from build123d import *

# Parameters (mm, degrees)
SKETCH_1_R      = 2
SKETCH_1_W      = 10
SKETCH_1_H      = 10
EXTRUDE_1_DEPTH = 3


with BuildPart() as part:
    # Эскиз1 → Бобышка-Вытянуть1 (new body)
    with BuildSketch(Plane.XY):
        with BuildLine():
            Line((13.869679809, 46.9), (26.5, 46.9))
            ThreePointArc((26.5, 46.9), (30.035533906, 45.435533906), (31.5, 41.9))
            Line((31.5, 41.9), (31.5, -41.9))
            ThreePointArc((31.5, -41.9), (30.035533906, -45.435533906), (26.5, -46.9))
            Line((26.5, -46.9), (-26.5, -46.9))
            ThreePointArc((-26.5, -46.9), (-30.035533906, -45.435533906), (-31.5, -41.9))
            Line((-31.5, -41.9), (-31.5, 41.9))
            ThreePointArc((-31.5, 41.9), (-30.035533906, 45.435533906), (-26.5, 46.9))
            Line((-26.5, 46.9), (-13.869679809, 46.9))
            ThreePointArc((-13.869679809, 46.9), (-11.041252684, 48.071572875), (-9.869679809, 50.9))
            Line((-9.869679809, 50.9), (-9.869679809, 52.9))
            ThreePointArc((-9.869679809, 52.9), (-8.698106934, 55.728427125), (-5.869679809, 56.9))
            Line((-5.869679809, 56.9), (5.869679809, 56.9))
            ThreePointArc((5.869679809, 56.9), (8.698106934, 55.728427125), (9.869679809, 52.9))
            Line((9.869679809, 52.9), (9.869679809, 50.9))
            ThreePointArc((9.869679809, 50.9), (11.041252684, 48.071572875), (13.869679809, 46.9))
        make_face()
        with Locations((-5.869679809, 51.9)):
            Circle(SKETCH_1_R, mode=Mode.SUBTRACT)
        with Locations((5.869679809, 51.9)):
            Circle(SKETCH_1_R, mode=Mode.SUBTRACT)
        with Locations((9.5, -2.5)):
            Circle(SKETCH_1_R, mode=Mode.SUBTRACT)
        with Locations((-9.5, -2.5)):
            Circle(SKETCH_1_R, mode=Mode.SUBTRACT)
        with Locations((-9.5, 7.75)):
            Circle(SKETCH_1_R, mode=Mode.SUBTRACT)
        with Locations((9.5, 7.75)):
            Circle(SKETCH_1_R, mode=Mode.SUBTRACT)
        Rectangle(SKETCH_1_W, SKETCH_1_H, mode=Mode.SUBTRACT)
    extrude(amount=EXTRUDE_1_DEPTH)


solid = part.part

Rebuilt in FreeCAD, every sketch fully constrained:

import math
import FreeCAD as App
import Part
import Sketcher

V = App.Vector


def add_polygon(sketch, points):
    """Adds a closed chain of lines whose ends are joined by coincident constraints."""
    first, n = sketch.GeometryCount, len(points)
    for a, b in zip(points, points[1:] + points[:1]):
        sketch.addGeometry(Part.LineSegment(App.Vector(*a, 0), App.Vector(*b, 0)), False)
    for i in range(n):
        sketch.addConstraint(Sketcher.Constraint("Coincident", first + i, 2, first + (i + 1) % n, 1))

doc = App.newDocument("Part")
params = doc.addObject("Spreadsheet::Sheet", "Params")
for row, (alias, value) in enumerate([
    ("sketch1_diameter", "4 mm"),
    ("sketch1_radius", "4 mm"),
    ("sketch1_radius2", "5 mm"),
    ("sketch1_width", "53 mm"),
    ("sketch1_width2", "10 mm"),
    ("pad1_length", "3 mm"),
], start=1):
    params.set(f"A{row}", alias)
    params.set(f"B{row}", "=" + value)
    params.setAlias(f"B{row}", alias)

body = doc.addObject("PartDesign::Body", "Body")

sketch1 = doc.addObject("Sketcher::SketchObject", "Sketch")
body.addObject(sketch1)
sketch1.AttachmentSupport = (doc.XY_Plane, [""])
sketch1.MapMode = "FlatFace"
sketch1.addGeometry(Part.LineSegment(V(26.5, 46.9, 0), V(13.9, 46.9, 0)), False)
sketch1.addGeometry(Part.ArcOfCircle(Part.Circle(V(13.9, 50.9, 0), V(0, 0, 1), 4), math.radians(180), math.radians(270)), False)
sketch1.addGeometry(Part.LineSegment(V(9.9, 50.9, 0), V(9.9, 52.9, 0)), False)
sketch1.addGeometry(Part.ArcOfCircle(Part.Circle(V(5.9, 52.9, 0), V(0, 0, 1), 4), math.radians(0), math.radians(90)), False)
sketch1.addGeometry(Part.LineSegment(V(5.9, 56.9, 0), V(-5.9, 56.9, 0)), False)
sketch1.addGeometry(Part.ArcOfCircle(Part.Circle(V(-5.9, 52.9, 0), V(0, 0, 1), 4), math.radians(90), math.radians(180)), False)
sketch1.addGeometry(Part.LineSegment(V(-9.9, 52.9, 0), V(-9.9, 50.9, 0)), False)
sketch1.addGeometry(Part.ArcOfCircle(Part.Circle(V(-13.9, 50.9, 0), V(0, 0, 1), 4), math.radians(-90), math.radians(0)), False)
sketch1.addGeometry(Part.LineSegment(V(-13.9, 46.9, 0), V(-26.5, 46.9, 0)), False)
sketch1.addGeometry(Part.ArcOfCircle(Part.Circle(V(-26.5, 41.9, 0), V(0, 0, 1), 5), math.radians(90), math.radians(180)), False)
sketch1.addGeometry(Part.LineSegment(V(-31.5, 41.9, 0), V(-31.5, -41.9, 0)), False)
sketch1.addGeometry(Part.ArcOfCircle(Part.Circle(V(-26.5, -41.9, 0), V(0, 0, 1), 5), math.radians(180), math.radians(270)), False)
sketch1.addGeometry(Part.LineSegment(V(-26.5, -46.9, 0), V(26.5, -46.9, 0)), False)
sketch1.addGeometry(Part.ArcOfCircle(Part.Circle(V(26.5, -41.9, 0), V(0, 0, 1), 5), math.radians(-90), math.radians(0)), False)
sketch1.addGeometry(Part.LineSegment(V(31.5, -41.9, 0), V(31.5, 41.9, 0)), False)
sketch1.addGeometry(Part.ArcOfCircle(Part.Circle(V(26.5, 41.9, 0), V(0, 0, 1), 5), math.radians(0), math.radians(90)), False)
sketch1.addGeometry(Part.Circle(V(9.5, -2.5, 0), V(0, 0, 1), 2), False)
sketch1.addGeometry(Part.Circle(V(9.5, 7.8, 0), V(0, 0, 1), 2), False)
add_polygon(sketch1, [(-5, -5), (-5, 5), (5, 5), (5, -5)])
sketch1.addGeometry(Part.Circle(V(-9.5, -2.5, 0), V(0, 0, 1), 2), False)
sketch1.addGeometry(Part.Circle(V(-9.5, 7.8, 0), V(0, 0, 1), 2), False)
sketch1.addGeometry(Part.Circle(V(5.9, 51.9, 0), V(0, 0, 1), 2), False)
sketch1.addGeometry(Part.Circle(V(-5.9, 51.9, 0), V(0, 0, 1), 2), False)
sketch1.addConstraint(Sketcher.Constraint("Tangent", 0, 2, 1, 2))
sketch1.addConstraint(Sketcher.Constraint("Tangent", 1, 1, 2, 1))
sketch1.addConstraint(Sketcher.Constraint("Tangent", 2, 2, 3, 1))
sketch1.addConstraint(Sketcher.Constraint("Tangent", 3, 2, 4, 1))
sketch1.addConstraint(Sketcher.Constraint("Tangent", 4, 2, 5, 1))
sketch1.addConstraint(Sketcher.Constraint("Tangent", 5, 2, 6, 1))
sketch1.addConstraint(Sketcher.Constraint("Tangent", 6, 2, 7, 2))
sketch1.addConstraint(Sketcher.Constraint("Tangent", 7, 1, 8, 1))
sketch1.addConstraint(Sketcher.Constraint("Tangent", 8, 2, 9, 1))
sketch1.addConstraint(Sketcher.Constraint("Tangent", 9, 2, 10, 1))
sketch1.addConstraint(Sketcher.Constraint("Tangent", 10, 2, 11, 1))
sketch1.addConstraint(Sketcher.Constraint("Tangent", 11, 2, 12, 1))
sketch1.addConstraint(Sketcher.Constraint("Tangent", 12, 2, 13, 1))
sketch1.addConstraint(Sketcher.Constraint("Tangent", 13, 2, 14, 1))
sketch1.addConstraint(Sketcher.Constraint("Tangent", 14, 2, 15, 1))
sketch1.addConstraint(Sketcher.Constraint("Tangent", 15, 2, 0, 1))
sketch1.addConstraint(Sketcher.Constraint("Horizontal", 0))
sketch1.addConstraint(Sketcher.Constraint("Vertical", 2))
sketch1.addConstraint(Sketcher.Constraint("Horizontal", 4))
sketch1.addConstraint(Sketcher.Constraint("Vertical", 6))
sketch1.addConstraint(Sketcher.Constraint("Horizontal", 8))
sketch1.addConstraint(Sketcher.Constraint("Vertical", 10))
sketch1.addConstraint(Sketcher.Constraint("Horizontal", 12))
sketch1.addConstraint(Sketcher.Constraint("Vertical", 14))
sketch1.addConstraint(Sketcher.Constraint("Vertical", 18))
sketch1.addConstraint(Sketcher.Constraint("Horizontal", 19))
sketch1.addConstraint(Sketcher.Constraint("Vertical", 20))
sketch1.addConstraint(Sketcher.Constraint("Horizontal", 21))
sketch1.addConstraint(Sketcher.Constraint("Equal", 1, 3))
sketch1.addConstraint(Sketcher.Constraint("Equal", 3, 5))
sketch1.addConstraint(Sketcher.Constraint("Equal", 5, 7))
sketch1.addConstraint(Sketcher.Constraint("Equal", 9, 11))
sketch1.addConstraint(Sketcher.Constraint("Equal", 11, 13))
sketch1.addConstraint(Sketcher.Constraint("Equal", 13, 15))
sketch1.addConstraint(Sketcher.Constraint("Equal", 16, 17))
sketch1.addConstraint(Sketcher.Constraint("Equal", 17, 22))
sketch1.addConstraint(Sketcher.Constraint("Equal", 22, 23))
sketch1.addConstraint(Sketcher.Constraint("Equal", 23, 24))
sketch1.addConstraint(Sketcher.Constraint("Equal", 24, 25))
sketch1.addConstraint(Sketcher.Constraint("Symmetric", 9, 3, 13, 3, -1, 1))
sketch1.addConstraint(Sketcher.Constraint("Symmetric", 18, 2, 20, 2, -1, 1))
sketch1.addConstraint(Sketcher.Constraint("Symmetric", 1, 3, 7, 3, -2))
sketch1.addConstraint(Sketcher.Constraint("Symmetric", 16, 3, 22, 3, -2))
sketch1.addConstraint(Sketcher.Constraint("Symmetric", 17, 3, 23, 3, -2))
sketch1.addConstraint(Sketcher.Constraint("Symmetric", 24, 3, 25, 3, -2))
sketch1.addConstraint(Sketcher.Constraint("Vertical", 16, 3, 17, 3))
sketch1.addConstraint(Sketcher.Constraint("Vertical", 3, 3, 24, 3))
sketch1.addConstraint(Sketcher.Constraint("Equal", 21, 18))
sketch1.addConstraint(Sketcher.Constraint("Diameter", 16, 4.0))
sketch1.addConstraint(Sketcher.Constraint("Radius", 1, 4.0))
sketch1.addConstraint(Sketcher.Constraint("Radius", 9, 5.0))
sketch1.addConstraint(Sketcher.Constraint("DistanceX", 12, 1, 12, 2, 53.0))
sketch1.addConstraint(Sketcher.Constraint("DistanceX", 19, 1, 19, 2, 10.0))
sketch1.addConstraint(Sketcher.Constraint("DistanceY", 2, 1, 2, 2, 2.0))
sketch1.addConstraint(Sketcher.Constraint("DistanceY", 10, 2, 10, 1, 83.8))
sketch1.addConstraint(Sketcher.Constraint("DistanceX", 16, 3, 13, 3, 17.0))
sketch1.addConstraint(Sketcher.Constraint("DistanceY", 24, 3, 3, 3, 1.0))
sketch1.addConstraint(Sketcher.Constraint("DistanceY", 16, 3, -1, 1, 2.5))
sketch1.addConstraint(Sketcher.Constraint("DistanceY", -1, 1, 17, 3, 7.75))
sketch1.addConstraint(Sketcher.Constraint("DistanceX", 0, 2, 0, 1, 12.63032))
sketch1.setExpression("Constraints[52]", "Params.sketch1_diameter")
sketch1.setExpression("Constraints[53]", "Params.sketch1_radius")
sketch1.setExpression("Constraints[54]", "Params.sketch1_radius2")
sketch1.setExpression("Constraints[55]", "Params.sketch1_width")
sketch1.setExpression("Constraints[56]", "Params.sketch1_width2")
pad1 = doc.addObject("PartDesign::Pad", "Pad")
body.addObject(pad1)
pad1.Profile = sketch1
pad1.setExpression("Length", "Params.pad1_length")

doc.recompute()
